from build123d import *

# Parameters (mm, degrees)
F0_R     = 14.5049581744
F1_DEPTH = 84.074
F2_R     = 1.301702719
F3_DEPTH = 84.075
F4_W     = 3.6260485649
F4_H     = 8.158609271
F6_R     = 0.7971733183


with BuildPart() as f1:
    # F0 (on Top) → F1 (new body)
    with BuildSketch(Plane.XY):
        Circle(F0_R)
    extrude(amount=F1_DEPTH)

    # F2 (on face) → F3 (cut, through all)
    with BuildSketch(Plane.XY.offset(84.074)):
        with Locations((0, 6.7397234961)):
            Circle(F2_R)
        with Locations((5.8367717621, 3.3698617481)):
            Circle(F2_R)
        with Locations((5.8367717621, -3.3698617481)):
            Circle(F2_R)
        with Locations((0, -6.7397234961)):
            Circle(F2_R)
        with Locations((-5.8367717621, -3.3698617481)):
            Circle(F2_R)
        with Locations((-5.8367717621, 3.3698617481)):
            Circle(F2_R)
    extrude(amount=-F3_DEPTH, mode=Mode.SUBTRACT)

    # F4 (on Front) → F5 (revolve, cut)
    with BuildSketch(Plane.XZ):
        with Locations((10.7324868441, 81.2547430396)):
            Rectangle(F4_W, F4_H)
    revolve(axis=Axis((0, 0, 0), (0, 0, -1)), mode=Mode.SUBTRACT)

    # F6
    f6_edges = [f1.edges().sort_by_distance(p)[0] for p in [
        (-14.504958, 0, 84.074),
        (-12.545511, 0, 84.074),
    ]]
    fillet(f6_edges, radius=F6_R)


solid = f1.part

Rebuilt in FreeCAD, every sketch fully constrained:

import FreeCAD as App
import Part
import Sketcher

V = App.Vector
Q = App.Units.Quantity


def edges_at(feature, points):
    """Names of the edges that pass closest to the given points."""
    edges = feature.Shape.Edges
    near = lambda p: min(range(len(edges)), key=lambda i: edges[i].distToShape(Part.Vertex(*p))[0])
    return sorted({f"Edge{near(p) + 1}" for p in points})

doc = App.newDocument("Part")
body = doc.addObject("PartDesign::Body", "Body")

# Sketch on XY plane
sketch1 = body.newObject("Sketcher::SketchObject", "Sketch")
sketch1.AttachmentSupport = (doc.getObject("XY_Plane"), [""])
sketch1.MapMode = "FlatFace"
sketch1.addGeometry(Part.Circle(V(0, 0, 0), V(0, 0, 1), 14.504958), False)
sketch1.addConstraint([
    Sketcher.Constraint("Coincident", 0, 3, -1, 1),
    Sketcher.Constraint("Diameter", 0, Q("29.009916 mm")),
])
pad1 = body.newObject("PartDesign::Pad", "Pad")
pad1.Profile = sketch1
pad1.Length = Q("3.31 in")

# Sketch on XY plane
sketch2 = body.newObject("Sketcher::SketchObject", "Sketch001")
sketch2.AttachmentSupport = (doc.getObject("XY_Plane"), [""])
sketch2.MapMode = "FlatFace"
sketch2.AttachmentOffset = App.Placement(V(0, 0, 3.31 * 25.4), App.Rotation())
sketch2.addGeometry([
    Part.Circle(V(0, 6.739723, 0), V(0, 0, 1), 1.301703),  # 0
    Part.Circle(V(5.836772, 3.369862, 0), V(0, 0, 1), 1.301703),  # 1
    Part.Circle(V(5.836772, -3.369862, 0), V(0, 0, 1), 1.301703),  # 2
    Part.Circle(V(0, -6.739723, 0), V(0, 0, 1), 1.301703),  # 3
    Part.Circle(V(-5.836772, -3.369862, 0), V(0, 0, 1), 1.301703),  # 4
    Part.Circle(V(-5.836772, 3.369862, 0), V(0, 0, 1), 1.301703),  # 5
], False)
sketch2.addConstraint([
    Sketcher.Constraint("Equal", 0, 1),
    Sketcher.Constraint("Equal", 1, 2),
    Sketcher.Constraint("Equal", 2, 3),
    Sketcher.Constraint("Equal", 3, 4),
    Sketcher.Constraint("Equal", 4, 5),
    Sketcher.Constraint("Symmetric", 0, 3, 3, 3, -1, 1),
    Sketcher.Constraint("Symmetric", 1, 3, 4, 3, -1, 1),
    Sketcher.Constraint("Symmetric", 2, 3, 5, 3, -1, 1),
    Sketcher.Constraint("Symmetric", 2, 3, 4, 3, -2),
    Sketcher.Constraint("PointOnObject", 0, 3, -2),
    Sketcher.Constraint("Diameter", 0, Q("2.603405 mm")),
    Sketcher.Constraint("DistanceX", -1, 1, 1, 3, Q("5.836772 mm")),
    Sketcher.Constraint("DistanceY", -1, 1, 1, 3, Q("3.369862 mm")),
    Sketcher.Constraint("DistanceY", 1, 3, 0, 3, Q("3.369862 mm")),
])
pocket1 = body.newObject("PartDesign::Pocket", "Pocket")
pocket1.Profile = sketch2
pocket1.Type = "ThroughAll"

# Sketch on XZ plane
sketch3 = body.newObject("Sketcher::SketchObject", "Sketch002")
sketch3.AttachmentSupport = (doc.getObject("XZ_Plane"), [""])
sketch3.MapMode = "FlatFace"
sketch3.addGeometry([
    Part.LineSegment(V(8.919463, 85.334048, 0), V(8.919463, 77.175438, 0)),
    Part.LineSegment(V(8.919463, 77.175438, 0), V(12.545511, 77.175438, 0)),
    Part.LineSegment(V(12.545511, 77.175438, 0), V(12.545511, 85.334048, 0)),
    Part.LineSegment(V(12.545511, 85.334048, 0), V(8.919463, 85.334048, 0)),
], False)
sketch3.addConstraint([
    Sketcher.Constraint("Coincident", 0, 2, 1, 1),
    Sketcher.Constraint("Coincident", 1, 2, 2, 1),
    Sketcher.Constraint("Coincident", 2, 2, 3, 1),
    Sketcher.Constraint("Coincident", 3, 2, 0, 1),
    Sketcher.Constraint("Vertical", 0),
    Sketcher.Constraint("Horizontal", 1),
    Sketcher.Constraint("Vertical", 2),
    Sketcher.Constraint("Horizontal", 3),
    Sketcher.Constraint("DistanceX", 1, 1, 1, 2, Q("3.626049 mm")),
    Sketcher.Constraint("DistanceY", 0, 2, 0, 1, Q("8.158609 mm")),
    Sketcher.Constraint("DistanceY", -1, 1, 0, 2, Q("77.175438 mm")),
    Sketcher.Constraint("DistanceX", -1, 1, 1, 2, Q("12.545511 mm")),
])
groove = body.newObject("PartDesign::Groove", "Groove")
groove.Profile = sketch3
groove.ReferenceAxis = (sketch3, ["V_Axis"])
groove.Angle = 360
doc.recompute()

fillet = body.newObject("PartDesign::Fillet", "Fillet")
fillet.Base = (groove, edges_at(groove, [(-14.505, 0, 84.074), (-12.546, 0, 84.074)]))
fillet.Radius = 0.797173

doc.recompute()
